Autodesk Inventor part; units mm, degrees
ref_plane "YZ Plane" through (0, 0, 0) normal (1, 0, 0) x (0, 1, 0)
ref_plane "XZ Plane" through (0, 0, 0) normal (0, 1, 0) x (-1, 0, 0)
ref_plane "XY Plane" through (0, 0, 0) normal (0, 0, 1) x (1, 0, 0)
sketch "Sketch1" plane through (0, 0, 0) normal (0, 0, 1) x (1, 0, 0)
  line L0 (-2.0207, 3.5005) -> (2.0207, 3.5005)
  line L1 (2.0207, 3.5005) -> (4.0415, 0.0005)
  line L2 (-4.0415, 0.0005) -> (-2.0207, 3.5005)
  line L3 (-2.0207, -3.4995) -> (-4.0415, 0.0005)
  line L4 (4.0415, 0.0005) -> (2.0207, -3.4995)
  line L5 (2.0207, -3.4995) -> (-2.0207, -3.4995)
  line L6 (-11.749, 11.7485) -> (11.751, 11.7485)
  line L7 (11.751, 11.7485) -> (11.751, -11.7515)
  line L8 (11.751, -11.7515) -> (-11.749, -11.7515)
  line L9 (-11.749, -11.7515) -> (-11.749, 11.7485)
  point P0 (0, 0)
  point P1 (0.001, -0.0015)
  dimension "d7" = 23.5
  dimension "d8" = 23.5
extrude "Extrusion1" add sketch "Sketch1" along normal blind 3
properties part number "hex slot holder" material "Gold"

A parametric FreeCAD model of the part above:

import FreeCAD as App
import Part
import Sketcher

V = App.Vector
Q = App.Units.Quantity


def add_polygon(sketch, points):
    """Adds a closed chain of lines whose ends are joined by coincident constraints."""
    first, n = sketch.GeometryCount, len(points)
    for a, b in zip(points, points[1:] + points[:1]):
        sketch.addGeometry(Part.LineSegment(App.Vector(*a, 0), App.Vector(*b, 0)), False)
    for i in range(n):
        sketch.addConstraint(Sketcher.Constraint("Coincident", first + i, 2, first + (i + 1) % n, 1))

doc = App.newDocument("Part")
params = doc.addObject("Spreadsheet::Sheet", "Params")
for row, (alias, value) in enumerate([
    ("sketch1_width", "23.5 mm"),
    ("pad1_length", "3 mm"),
], start=1):
    params.set(f"A{row}", alias)
    params.set(f"B{row}", "=" + value)
    params.setAlias(f"B{row}", alias)

body = doc.addObject("PartDesign::Body", "Body")

# Sketch on XY plane
sketch1 = body.newObject("Sketcher::SketchObject", "Sketch")
sketch1.AttachmentSupport = (doc.getObject("XY_Plane"), [""])
sketch1.MapMode = "FlatFace"
add_polygon(sketch1, [(11.751, 11.7485), (-11.749, 11.7485), (-11.749, -11.7515), (11.751, -11.7515)])  # lines 0-3
add_polygon(sketch1, [(-4.0415, 0.0005), (-2.0207, 3.5005), (2.0207, 3.5005), (4.0415, 0.0005), (2.0207, -3.4995), (-2.0207, -3.4995)])  # lines 4-9
sketch1.addConstraint(Sketcher.Constraint("Horizontal", 0))
sketch1.addConstraint(Sketcher.Constraint("Vertical", 1))
sketch1.addConstraint(Sketcher.Constraint("Horizontal", 2))
sketch1.addConstraint(Sketcher.Constraint("Vertical", 3))
sketch1.addConstraint(Sketcher.Constraint("Horizontal", 5))
sketch1.addConstraint(Sketcher.Constraint("Horizontal", 8))
sketch1.addConstraint(Sketcher.Constraint("Symmetric", 6, 2, 9, 2, -2))
sketch1.addConstraint(Sketcher.Constraint("Parallel", 4, 7))
sketch1.addConstraint(Sketcher.Constraint("Parallel", 6, 9))
sketch1.addConstraint(Sketcher.Constraint("Vertical", 5, 2, 7, 2))
sketch1.addConstraint(Sketcher.Constraint("Vertical", 4, 2, 8, 2))
sketch1.addConstraint(Sketcher.Constraint("Equal", 2, 1))
sketch1.addConstraint(Sketcher.Constraint("DistanceX", 0, 2, 0, 1, Q("23.5 mm")))
sketch1.addConstraint(Sketcher.Constraint("Angle", 4, Q("59.999 deg")))
sketch1.addConstraint(Sketcher.Constraint("DistanceY", 7, 2, 5, 2, Q("7 mm")))
sketch1.addConstraint(Sketcher.Constraint("DistanceX", 5, 1, 5, 2, Q("4.0414 mm")))
sketch1.addConstraint(Sketcher.Constraint("DistanceX", 0, 2, -1, 1, Q("11.749 mm")))
sketch1.addConstraint(Sketcher.Constraint("DistanceY", 4, 2, 0, 2, Q("8.248 mm")))
sketch1.addConstraint(Sketcher.Constraint("DistanceY", -1, 1, 0, 2, Q("11.7485 mm")))
sketch1.setExpression("Constraints[22]", "Params.sketch1_width")
pad1 = body.newObject("PartDesign::Pad", "Pad")
pad1.Profile = sketch1
pad1.setExpression("Length", "Params.pad1_length")

doc.recompute()
